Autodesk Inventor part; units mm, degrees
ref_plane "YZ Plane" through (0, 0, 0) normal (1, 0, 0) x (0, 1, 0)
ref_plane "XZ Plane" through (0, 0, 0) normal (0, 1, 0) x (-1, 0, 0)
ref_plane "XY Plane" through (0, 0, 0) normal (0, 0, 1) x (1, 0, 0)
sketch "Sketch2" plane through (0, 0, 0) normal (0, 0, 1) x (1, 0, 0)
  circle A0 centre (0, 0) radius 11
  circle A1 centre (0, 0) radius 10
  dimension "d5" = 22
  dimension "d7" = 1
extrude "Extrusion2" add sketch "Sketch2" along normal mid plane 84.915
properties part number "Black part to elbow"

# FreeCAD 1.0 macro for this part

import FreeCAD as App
import Part
import Sketcher

V = App.Vector
Q = App.Units.Quantity

doc = App.newDocument("Part")
params = doc.addObject("Spreadsheet::Sheet", "Params")
for row, (alias, value) in enumerate([
    ("sketch1_diameter", "22 mm"),
    ("sketch1_diameter2", "20 mm"),
    ("pad1_length", "84.915 mm"),
], start=1):
    params.set(f"A{row}", alias)
    params.set(f"B{row}", "=" + value)
    params.setAlias(f"B{row}", alias)

body = doc.addObject("PartDesign::Body", "Body")

# Sketch on XY plane
sketch1 = body.newObject("Sketcher::SketchObject", "Sketch")
sketch1.AttachmentSupport = (doc.getObject("XY_Plane"), [""])
sketch1.MapMode = "FlatFace"
sketch1.addGeometry([
    Part.Circle(V(0, 0, 0), V(0, 0, 1), 11),
    Part.Circle(V(0, 0, 0), V(0, 0, 1), 10),
], False)
sketch1.addConstraint([
    Sketcher.Constraint("Coincident", 0, 3, -1, 1),
    Sketcher.Constraint("Coincident", 1, 3, -1, 1),
    Sketcher.Constraint("Diameter", 0, Q("22 mm")),
    Sketcher.Constraint("Diameter", 1, Q("20 mm")),
])
sketch1.setExpression("Constraints[2]", "Params.sketch1_diameter")
sketch1.setExpression("Constraints[3]", "Params.sketch1_diameter2")
pad1 = body.newObject("PartDesign::Pad", "Pad")
pad1.Profile = sketch1
pad1.setExpression("Length", "Params.pad1_length")
pad1.Midplane = True

doc.recompute()
